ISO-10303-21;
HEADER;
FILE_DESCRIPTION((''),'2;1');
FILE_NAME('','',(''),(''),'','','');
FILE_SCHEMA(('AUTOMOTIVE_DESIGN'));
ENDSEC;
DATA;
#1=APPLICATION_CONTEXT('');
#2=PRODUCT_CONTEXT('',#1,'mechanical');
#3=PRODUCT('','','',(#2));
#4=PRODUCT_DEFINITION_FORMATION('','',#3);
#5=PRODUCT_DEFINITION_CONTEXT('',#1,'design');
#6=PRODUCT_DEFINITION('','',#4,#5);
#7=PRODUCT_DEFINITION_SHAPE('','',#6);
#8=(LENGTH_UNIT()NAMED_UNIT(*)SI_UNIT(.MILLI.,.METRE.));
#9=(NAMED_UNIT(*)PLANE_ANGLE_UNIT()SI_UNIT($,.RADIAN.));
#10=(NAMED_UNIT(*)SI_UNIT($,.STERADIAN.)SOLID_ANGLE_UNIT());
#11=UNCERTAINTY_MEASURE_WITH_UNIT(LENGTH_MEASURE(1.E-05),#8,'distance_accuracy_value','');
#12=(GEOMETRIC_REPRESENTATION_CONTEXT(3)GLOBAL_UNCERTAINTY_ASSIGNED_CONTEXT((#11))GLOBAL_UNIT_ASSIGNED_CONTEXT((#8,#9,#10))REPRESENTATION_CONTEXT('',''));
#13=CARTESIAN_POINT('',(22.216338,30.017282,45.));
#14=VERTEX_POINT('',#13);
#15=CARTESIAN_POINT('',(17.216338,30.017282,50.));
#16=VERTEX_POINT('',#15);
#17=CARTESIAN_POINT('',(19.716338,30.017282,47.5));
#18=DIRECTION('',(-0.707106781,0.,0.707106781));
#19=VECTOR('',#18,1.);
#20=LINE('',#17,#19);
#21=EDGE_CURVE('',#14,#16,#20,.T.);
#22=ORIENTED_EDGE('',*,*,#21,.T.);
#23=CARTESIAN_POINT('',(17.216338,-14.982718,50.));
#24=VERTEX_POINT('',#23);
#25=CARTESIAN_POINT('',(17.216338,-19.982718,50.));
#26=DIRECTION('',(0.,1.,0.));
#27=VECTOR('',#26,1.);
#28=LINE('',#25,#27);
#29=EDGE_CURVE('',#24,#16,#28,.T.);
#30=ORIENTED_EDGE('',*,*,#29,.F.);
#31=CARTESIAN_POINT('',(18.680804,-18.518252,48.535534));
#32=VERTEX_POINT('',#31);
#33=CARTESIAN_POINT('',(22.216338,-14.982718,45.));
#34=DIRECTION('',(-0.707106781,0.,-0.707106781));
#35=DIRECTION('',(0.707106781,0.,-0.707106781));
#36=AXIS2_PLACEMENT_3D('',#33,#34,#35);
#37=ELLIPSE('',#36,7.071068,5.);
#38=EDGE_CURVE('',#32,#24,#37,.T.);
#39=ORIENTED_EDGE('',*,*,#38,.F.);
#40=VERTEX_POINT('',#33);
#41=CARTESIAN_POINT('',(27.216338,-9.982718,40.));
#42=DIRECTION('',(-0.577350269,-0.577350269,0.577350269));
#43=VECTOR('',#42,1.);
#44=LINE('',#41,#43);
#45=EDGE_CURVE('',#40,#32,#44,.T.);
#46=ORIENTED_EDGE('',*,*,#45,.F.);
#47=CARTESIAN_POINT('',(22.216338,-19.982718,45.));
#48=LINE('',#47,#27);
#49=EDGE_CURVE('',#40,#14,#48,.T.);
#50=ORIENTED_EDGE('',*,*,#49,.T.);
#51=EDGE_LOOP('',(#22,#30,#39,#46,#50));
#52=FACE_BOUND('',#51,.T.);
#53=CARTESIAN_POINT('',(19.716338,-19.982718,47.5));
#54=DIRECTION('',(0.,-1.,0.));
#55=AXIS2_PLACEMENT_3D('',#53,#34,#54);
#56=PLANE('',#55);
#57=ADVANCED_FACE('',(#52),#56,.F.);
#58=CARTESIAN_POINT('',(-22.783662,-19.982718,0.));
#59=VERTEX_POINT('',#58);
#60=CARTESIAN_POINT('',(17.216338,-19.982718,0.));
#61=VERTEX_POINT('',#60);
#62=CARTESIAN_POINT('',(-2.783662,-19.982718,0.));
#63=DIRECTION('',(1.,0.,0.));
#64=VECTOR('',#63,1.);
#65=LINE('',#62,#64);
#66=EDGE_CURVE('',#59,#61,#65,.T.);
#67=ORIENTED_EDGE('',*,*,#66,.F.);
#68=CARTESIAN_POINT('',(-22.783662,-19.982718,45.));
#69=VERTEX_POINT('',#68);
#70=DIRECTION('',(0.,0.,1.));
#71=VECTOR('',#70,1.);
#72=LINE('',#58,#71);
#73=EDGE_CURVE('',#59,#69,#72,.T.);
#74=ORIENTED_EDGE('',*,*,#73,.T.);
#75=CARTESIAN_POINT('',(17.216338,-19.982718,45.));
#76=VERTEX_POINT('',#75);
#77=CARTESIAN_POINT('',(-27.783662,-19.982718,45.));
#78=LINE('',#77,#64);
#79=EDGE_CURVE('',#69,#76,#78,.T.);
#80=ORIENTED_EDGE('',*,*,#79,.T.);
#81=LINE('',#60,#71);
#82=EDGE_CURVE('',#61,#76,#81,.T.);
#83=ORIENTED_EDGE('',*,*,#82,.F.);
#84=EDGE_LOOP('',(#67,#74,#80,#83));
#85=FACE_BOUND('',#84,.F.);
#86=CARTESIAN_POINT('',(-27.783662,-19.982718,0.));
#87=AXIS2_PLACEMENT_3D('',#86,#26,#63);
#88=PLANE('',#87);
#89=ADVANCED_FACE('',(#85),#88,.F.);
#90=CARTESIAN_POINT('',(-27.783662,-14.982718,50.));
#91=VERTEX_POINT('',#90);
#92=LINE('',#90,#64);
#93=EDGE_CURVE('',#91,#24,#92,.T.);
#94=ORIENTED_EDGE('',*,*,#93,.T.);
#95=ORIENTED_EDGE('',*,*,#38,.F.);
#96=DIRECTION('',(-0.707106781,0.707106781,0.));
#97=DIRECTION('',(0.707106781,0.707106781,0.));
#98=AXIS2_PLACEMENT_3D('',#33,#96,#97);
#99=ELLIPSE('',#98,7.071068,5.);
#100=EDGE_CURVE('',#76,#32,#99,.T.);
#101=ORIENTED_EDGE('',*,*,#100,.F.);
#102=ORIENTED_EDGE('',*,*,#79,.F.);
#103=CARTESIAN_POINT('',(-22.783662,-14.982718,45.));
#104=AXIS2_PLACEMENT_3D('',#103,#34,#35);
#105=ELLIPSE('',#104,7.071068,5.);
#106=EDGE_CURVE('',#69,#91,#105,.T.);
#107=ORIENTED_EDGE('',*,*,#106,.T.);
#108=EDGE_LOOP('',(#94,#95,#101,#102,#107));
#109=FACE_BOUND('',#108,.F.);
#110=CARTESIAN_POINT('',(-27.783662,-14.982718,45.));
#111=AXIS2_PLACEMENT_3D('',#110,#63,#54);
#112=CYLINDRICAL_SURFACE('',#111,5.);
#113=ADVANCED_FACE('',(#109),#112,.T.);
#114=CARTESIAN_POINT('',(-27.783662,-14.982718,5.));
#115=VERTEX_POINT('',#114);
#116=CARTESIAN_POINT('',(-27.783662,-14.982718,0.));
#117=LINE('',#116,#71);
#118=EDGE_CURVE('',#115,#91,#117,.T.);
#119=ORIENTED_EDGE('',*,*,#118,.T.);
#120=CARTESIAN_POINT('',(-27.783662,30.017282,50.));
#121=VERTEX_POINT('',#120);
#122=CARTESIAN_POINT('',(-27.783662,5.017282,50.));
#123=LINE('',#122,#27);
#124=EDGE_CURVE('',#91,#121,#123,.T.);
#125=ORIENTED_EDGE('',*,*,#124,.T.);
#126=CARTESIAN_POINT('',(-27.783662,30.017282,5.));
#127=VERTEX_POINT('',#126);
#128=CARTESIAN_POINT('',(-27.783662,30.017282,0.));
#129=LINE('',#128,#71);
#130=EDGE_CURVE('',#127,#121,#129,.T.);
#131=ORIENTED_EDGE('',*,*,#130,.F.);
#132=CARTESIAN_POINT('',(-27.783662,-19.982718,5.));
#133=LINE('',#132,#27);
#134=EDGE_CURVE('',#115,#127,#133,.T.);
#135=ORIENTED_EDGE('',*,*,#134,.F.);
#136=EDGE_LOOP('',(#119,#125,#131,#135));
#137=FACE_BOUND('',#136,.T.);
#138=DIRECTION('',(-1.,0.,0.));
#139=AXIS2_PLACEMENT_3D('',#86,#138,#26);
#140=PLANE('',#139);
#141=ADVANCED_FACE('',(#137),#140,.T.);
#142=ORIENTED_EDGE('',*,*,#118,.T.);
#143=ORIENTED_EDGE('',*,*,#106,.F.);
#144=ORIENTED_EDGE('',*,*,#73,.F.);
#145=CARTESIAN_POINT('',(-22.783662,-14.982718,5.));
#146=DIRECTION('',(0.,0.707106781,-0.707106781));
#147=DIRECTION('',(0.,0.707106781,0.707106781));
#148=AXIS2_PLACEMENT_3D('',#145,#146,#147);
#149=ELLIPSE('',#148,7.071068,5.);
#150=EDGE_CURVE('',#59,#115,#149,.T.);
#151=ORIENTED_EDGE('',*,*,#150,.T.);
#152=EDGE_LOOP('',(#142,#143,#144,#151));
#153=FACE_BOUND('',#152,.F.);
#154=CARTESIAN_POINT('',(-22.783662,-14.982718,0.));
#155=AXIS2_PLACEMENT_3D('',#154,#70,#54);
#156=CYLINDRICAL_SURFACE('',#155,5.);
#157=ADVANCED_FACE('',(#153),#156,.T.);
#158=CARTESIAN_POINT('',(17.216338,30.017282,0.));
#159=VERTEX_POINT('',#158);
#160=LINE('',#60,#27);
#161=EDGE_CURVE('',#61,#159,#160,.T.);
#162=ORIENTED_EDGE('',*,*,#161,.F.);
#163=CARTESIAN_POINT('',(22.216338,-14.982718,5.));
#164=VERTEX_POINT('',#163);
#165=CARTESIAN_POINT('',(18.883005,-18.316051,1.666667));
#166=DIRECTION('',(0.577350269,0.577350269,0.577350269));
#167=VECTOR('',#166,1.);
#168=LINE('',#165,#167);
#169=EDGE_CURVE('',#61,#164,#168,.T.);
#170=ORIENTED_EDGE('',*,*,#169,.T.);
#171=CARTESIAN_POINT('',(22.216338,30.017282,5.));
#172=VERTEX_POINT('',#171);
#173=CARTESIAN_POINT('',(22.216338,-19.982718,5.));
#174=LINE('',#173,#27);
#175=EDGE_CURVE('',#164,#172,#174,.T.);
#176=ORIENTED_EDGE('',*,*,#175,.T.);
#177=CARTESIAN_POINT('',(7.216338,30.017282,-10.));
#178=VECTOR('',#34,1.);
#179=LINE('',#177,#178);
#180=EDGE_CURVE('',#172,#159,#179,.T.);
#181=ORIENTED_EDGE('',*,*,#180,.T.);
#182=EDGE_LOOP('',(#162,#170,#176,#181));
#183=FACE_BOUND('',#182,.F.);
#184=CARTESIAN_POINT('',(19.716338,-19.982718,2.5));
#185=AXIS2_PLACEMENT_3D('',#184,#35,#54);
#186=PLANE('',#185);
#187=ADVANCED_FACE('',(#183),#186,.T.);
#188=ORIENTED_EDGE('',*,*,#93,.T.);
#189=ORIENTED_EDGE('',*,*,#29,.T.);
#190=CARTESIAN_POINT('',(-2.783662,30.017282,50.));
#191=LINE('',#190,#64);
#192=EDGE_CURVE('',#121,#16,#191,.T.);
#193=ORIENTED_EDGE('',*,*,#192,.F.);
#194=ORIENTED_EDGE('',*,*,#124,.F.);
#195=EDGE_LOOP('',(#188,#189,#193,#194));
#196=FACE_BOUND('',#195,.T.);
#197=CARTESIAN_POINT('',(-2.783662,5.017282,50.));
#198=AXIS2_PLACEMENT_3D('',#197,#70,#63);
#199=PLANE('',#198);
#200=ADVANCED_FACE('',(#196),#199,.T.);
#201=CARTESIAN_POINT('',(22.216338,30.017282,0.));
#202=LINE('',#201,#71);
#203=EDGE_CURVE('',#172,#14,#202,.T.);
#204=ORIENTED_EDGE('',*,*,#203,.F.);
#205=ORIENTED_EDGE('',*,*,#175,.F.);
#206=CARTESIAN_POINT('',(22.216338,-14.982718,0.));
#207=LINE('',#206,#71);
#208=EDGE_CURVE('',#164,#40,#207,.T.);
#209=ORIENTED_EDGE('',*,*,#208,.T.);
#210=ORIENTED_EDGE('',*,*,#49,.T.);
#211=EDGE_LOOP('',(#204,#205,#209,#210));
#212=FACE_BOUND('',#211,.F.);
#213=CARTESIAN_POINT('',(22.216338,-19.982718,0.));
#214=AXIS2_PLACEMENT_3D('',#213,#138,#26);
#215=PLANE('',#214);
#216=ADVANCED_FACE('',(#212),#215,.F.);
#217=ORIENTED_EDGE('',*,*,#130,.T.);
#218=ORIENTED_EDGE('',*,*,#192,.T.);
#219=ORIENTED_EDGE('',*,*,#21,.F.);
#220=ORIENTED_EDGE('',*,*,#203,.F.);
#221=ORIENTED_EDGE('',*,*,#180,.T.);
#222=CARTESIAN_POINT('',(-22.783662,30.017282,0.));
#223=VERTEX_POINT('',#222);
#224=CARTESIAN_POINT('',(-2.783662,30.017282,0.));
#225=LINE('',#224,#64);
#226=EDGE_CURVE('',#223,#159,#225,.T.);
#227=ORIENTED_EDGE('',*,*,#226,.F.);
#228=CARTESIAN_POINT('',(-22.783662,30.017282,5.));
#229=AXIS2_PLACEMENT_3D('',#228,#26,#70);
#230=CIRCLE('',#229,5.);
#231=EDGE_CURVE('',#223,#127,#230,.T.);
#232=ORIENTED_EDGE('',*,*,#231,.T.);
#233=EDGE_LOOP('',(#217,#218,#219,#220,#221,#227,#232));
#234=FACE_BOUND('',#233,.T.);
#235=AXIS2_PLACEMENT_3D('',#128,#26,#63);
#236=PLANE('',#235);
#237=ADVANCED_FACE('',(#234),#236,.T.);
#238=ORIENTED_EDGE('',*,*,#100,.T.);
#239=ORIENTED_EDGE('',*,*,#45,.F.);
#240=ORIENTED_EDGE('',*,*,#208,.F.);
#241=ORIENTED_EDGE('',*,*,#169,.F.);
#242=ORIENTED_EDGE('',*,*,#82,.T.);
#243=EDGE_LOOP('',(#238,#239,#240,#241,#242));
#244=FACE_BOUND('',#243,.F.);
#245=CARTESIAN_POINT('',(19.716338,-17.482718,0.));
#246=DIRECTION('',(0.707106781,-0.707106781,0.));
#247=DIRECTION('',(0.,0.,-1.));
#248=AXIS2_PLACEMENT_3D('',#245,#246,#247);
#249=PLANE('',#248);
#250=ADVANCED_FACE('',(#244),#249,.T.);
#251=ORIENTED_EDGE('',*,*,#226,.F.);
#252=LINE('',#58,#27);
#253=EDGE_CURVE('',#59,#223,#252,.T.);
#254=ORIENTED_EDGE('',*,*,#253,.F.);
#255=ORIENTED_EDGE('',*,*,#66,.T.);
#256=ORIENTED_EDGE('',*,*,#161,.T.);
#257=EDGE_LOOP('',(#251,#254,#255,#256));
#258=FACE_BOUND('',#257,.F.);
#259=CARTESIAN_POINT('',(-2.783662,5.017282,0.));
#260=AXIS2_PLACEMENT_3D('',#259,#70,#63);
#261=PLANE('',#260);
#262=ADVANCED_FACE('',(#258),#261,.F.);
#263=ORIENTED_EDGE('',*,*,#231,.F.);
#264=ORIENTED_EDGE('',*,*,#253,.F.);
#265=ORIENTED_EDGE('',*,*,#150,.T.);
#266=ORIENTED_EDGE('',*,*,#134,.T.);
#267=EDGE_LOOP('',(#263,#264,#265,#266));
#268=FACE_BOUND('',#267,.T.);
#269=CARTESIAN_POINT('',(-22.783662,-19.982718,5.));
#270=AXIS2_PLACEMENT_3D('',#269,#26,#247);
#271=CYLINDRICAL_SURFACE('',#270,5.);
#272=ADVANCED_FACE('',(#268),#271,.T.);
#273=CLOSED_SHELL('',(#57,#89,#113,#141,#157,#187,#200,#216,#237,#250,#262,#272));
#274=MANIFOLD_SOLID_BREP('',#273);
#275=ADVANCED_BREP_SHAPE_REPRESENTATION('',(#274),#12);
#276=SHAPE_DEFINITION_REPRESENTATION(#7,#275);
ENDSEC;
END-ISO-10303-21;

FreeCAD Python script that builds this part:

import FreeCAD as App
import Part
import Sketcher
from FreeCAD import Vector


def edges_at(feature, points):
    """Names of the edges that pass closest to the given points."""
    edges = feature.Shape.Edges
    near = lambda p: min(range(len(edges)), key=lambda i: edges[i].distToShape(Part.Vertex(*p))[0])
    return sorted({f"Edge{near(p) + 1}" for p in points})

doc = App.newDocument("Part")
params = doc.addObject("Spreadsheet::Sheet", "Params")
for row, (alias, value) in enumerate([
    ("sketch1_width", "50 mm"),
    ("pad1_length", "50 mm"),
    ("chamfer_size", "5 mm"),
    ("fillet_radius", "5 mm"),
], start=1):
    params.set(f"A{row}", alias)
    params.set(f"B{row}", "=" + value)
    params.setAlias(f"B{row}", alias)

body = doc.addObject("PartDesign::Body", "Body")

# Sketch on XY plane
sketch1 = body.newObject("Sketcher::SketchObject", "Sketch")
sketch1.AttachmentSupport = (doc.getObject("XY_Plane"), [""])
sketch1.MapMode = "FlatFace"
sketch1.addGeometry([
    Part.LineSegment(Vector(-27.783662, 30.017282, 0), Vector(-27.783662, -19.982718, 0)),
    Part.LineSegment(Vector(-27.783662, -19.982718, 0), Vector(22.216338, -19.982718, 0)),
    Part.LineSegment(Vector(22.216338, -19.982718, 0), Vector(22.216338, 30.017282, 0)),
    Part.LineSegment(Vector(22.216338, 30.017282, 0), Vector(-27.783662, 30.017282, 0)),
], False)
sketch1.addConstraint([
    Sketcher.Constraint("Coincident", 0, 2, 1, 1),
    Sketcher.Constraint("Coincident", 1, 2, 2, 1),
    Sketcher.Constraint("Coincident", 2, 2, 3, 1),
    Sketcher.Constraint("Coincident", 3, 2, 0, 1),
    Sketcher.Constraint("Vertical", 0),
    Sketcher.Constraint("Horizontal", 1),
    Sketcher.Constraint("Vertical", 2),
    Sketcher.Constraint("Horizontal", 3),
    Sketcher.Constraint("Equal", 3, 0),
    Sketcher.Constraint("DistanceX", 1, 1, 1, 2, 50.0),
    Sketcher.Constraint("DistanceX", 0, 2, -1, 1, 27.783662),
    Sketcher.Constraint("DistanceY", 0, 2, -1, 1, 19.982718),
])
sketch1.setExpression("Constraints[9]", "Params.sketch1_width")
pad1 = body.newObject("PartDesign::Pad", "Pad")
pad1.Profile = sketch1
pad1.setExpression("Length", "Params.pad1_length")
doc.recompute()

chamfer = body.newObject("PartDesign::Chamfer", "Chamfer")
chamfer.Base = (pad1, edges_at(pad1, [(22.216, 5.017, 50), (22.216, -19.983, 25), (22.216, 5.017, 0)]))
chamfer.setExpression("Size", "Params.chamfer_size")
doc.recompute()

fillet = body.newObject("PartDesign::Fillet", "Fillet")
fillet.Base = (chamfer, edges_at(chamfer, [(-5.284, -19.983, 50), (-27.784, -19.983, 25), (-27.784, 5.017, 0)]))
fillet.setExpression("Radius", "Params.fillet_radius")

doc.recompute()
